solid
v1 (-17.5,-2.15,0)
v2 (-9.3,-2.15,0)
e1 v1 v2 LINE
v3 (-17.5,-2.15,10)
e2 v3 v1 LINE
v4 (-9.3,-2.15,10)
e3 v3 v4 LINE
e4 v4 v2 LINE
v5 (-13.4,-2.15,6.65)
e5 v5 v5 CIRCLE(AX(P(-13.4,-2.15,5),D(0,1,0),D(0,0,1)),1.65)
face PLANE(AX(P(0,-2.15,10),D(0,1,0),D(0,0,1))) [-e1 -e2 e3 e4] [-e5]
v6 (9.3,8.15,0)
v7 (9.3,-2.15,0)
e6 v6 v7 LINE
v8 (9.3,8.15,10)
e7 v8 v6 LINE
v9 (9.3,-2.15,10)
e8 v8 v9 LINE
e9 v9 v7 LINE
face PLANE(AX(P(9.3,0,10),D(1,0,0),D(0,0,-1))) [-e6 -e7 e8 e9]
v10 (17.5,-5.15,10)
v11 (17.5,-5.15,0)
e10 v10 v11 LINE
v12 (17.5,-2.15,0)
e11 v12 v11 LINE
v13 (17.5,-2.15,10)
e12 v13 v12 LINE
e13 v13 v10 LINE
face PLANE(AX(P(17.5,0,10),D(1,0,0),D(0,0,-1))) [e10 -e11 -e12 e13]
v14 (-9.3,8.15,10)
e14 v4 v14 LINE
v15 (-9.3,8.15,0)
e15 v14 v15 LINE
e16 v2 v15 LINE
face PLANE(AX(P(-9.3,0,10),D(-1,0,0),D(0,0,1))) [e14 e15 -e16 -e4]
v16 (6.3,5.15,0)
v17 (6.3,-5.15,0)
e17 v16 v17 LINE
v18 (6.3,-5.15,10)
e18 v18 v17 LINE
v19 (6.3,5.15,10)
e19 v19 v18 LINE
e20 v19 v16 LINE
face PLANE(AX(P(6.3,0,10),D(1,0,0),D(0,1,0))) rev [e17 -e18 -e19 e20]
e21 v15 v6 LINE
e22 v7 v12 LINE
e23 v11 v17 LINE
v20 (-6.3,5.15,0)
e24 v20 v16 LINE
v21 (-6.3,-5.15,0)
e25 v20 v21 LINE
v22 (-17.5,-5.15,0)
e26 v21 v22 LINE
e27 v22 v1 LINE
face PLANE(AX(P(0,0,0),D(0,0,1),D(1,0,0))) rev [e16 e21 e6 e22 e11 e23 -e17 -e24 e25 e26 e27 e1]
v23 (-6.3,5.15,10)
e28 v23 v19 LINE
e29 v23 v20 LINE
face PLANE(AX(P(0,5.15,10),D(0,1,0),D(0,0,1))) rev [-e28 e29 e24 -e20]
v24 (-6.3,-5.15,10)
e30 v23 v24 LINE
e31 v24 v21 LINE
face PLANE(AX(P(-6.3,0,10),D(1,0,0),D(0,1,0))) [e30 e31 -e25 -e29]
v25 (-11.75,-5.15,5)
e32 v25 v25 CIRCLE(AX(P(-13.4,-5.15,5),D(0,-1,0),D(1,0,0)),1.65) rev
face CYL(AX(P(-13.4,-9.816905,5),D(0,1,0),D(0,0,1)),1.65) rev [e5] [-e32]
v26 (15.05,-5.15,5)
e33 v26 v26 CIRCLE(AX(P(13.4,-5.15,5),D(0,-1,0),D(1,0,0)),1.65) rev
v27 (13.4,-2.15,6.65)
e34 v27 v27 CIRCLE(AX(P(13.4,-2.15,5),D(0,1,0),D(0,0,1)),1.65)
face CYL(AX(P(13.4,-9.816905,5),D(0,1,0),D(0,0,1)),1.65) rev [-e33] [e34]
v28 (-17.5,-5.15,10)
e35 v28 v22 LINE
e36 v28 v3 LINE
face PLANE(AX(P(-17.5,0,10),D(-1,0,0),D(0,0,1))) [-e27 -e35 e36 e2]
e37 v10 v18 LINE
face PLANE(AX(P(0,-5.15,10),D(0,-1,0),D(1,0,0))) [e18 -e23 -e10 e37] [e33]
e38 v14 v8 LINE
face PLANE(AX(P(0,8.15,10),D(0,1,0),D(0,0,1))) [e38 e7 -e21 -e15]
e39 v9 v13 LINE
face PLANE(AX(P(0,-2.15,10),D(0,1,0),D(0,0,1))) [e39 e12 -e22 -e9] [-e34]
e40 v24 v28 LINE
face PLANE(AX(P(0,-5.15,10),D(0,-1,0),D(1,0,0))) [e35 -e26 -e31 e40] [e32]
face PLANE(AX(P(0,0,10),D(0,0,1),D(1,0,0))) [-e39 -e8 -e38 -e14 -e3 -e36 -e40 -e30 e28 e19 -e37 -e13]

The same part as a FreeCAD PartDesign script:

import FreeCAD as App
import Part
import Sketcher
from FreeCAD import Vector


def add_polygon(sketch, points):
    """Adds a closed chain of lines whose ends are joined by coincident constraints."""
    first, n = sketch.GeometryCount, len(points)
    for a, b in zip(points, points[1:] + points[:1]):
        sketch.addGeometry(Part.LineSegment(App.Vector(*a, 0), App.Vector(*b, 0)), False)
    for i in range(n):
        sketch.addConstraint(Sketcher.Constraint("Coincident", first + i, 2, first + (i + 1) % n, 1))

doc = App.newDocument("Part")
params = doc.addObject("Spreadsheet::Sheet", "Params")
for row, (alias, value) in enumerate([
    ("sketch1_height", "3 mm"),
    ("sketch1_width", "11.2 mm"),
    ("sketch1_width2", "8.2 mm"),
    ("sketch1_width3", "18.6 mm"),
    ("sketch1_height2", "10.3 mm"),
    ("pad1_length", "10 mm"),
    ("sketch2_diameter", "3.3 mm"),
    ("pocket1_length", "3 mm"),
], start=1):
    params.set(f"A{row}", alias)
    params.set(f"B{row}", "=" + value)
    params.setAlias(f"B{row}", alias)

body = doc.addObject("PartDesign::Body", "Body")

sketch1 = body.newObject("Sketcher::SketchObject", "Sketch")
sketch1.AttachmentSupport = (doc.getObject("XY_Plane"), [""])
sketch1.MapMode = "FlatFace"
add_polygon(sketch1, [(6.3, -5.2), (17.5, -5.2), (17.5, -2.1), (9.3, -2.1), (9.3, 8.2), (-9.3, 8.2), (-9.3, -2.1), (-17.5, -2.1), (-17.5, -5.2), (-6.3, -5.2), (-6.3, 5.2), (6.3, 5.2)])
sketch1.addConstraint(Sketcher.Constraint("Horizontal", 0))
sketch1.addConstraint(Sketcher.Constraint("Vertical", 1))
sketch1.addConstraint(Sketcher.Constraint("Horizontal", 2))
sketch1.addConstraint(Sketcher.Constraint("Vertical", 3))
sketch1.addConstraint(Sketcher.Constraint("Horizontal", 4))
sketch1.addConstraint(Sketcher.Constraint("Vertical", 5))
sketch1.addConstraint(Sketcher.Constraint("Horizontal", 6))
sketch1.addConstraint(Sketcher.Constraint("Vertical", 7))
sketch1.addConstraint(Sketcher.Constraint("Horizontal", 8))
sketch1.addConstraint(Sketcher.Constraint("Vertical", 9))
sketch1.addConstraint(Sketcher.Constraint("Horizontal", 10))
sketch1.addConstraint(Sketcher.Constraint("Vertical", 11))
sketch1.addConstraint(Sketcher.Constraint("Symmetric", 8, 2, 10, 2, -1, 1))
sketch1.addConstraint(Sketcher.Constraint("Symmetric", 2, 2, 5, 2, -2))
sketch1.addConstraint(Sketcher.Constraint("Symmetric", 0, 2, 7, 2, -2))
sketch1.addConstraint(Sketcher.Constraint("Equal", 5, 9))
sketch1.addConstraint(Sketcher.Constraint("DistanceY", 1, 1, 1, 2, 3.0))
sketch1.addConstraint(Sketcher.Constraint("DistanceX", 0, 1, 0, 2, 11.2))
sketch1.addConstraint(Sketcher.Constraint("DistanceX", 2, 2, 2, 1, 8.2))
sketch1.addConstraint(Sketcher.Constraint("DistanceX", 4, 2, 4, 1, 18.6))
sketch1.addConstraint(Sketcher.Constraint("DistanceY", 3, 1, 3, 2, 10.3))
sketch1.setExpression("Constraints[28]", "Params.sketch1_height")
sketch1.setExpression("Constraints[29]", "Params.sketch1_width")
sketch1.setExpression("Constraints[30]", "Params.sketch1_width2")
sketch1.setExpression("Constraints[31]", "Params.sketch1_width3")
sketch1.setExpression("Constraints[32]", "Params.sketch1_height2")
pad1 = body.newObject("PartDesign::Pad", "Pad")
pad1.Profile = sketch1
pad1.setExpression("Length", "Params.pad1_length")

sketch2 = body.newObject("Sketcher::SketchObject", "Sketch001")
sketch2.AttachmentSupport = (doc.getObject("XZ_Plane"), [""])
sketch2.MapMode = "FlatFace"
sketch2.AttachmentOffset = App.Placement(Vector(0, 0, 2.15), App.Rotation())
sketch2.addGeometry(Part.Circle(Vector(13.4, 5, 0), Vector(0, 0, 1), 1.6), False)
sketch2.addGeometry(Part.Circle(Vector(-13.4, 5, 0), Vector(0, 0, 1), 1.6), False)
sketch2.addConstraint(Sketcher.Constraint("Equal", 0, 1))
sketch2.addConstraint(Sketcher.Constraint("Symmetric", 0, 3, 1, 3, -2))
sketch2.addConstraint(Sketcher.Constraint("Diameter", 0, 3.3))
sketch2.addConstraint(Sketcher.Constraint("DistanceY", -1, 1, 0, 3, 5.0))
sketch2.addConstraint(Sketcher.Constraint("DistanceX", -1, 1, 0, 3, 13.4))
sketch2.setExpression("Constraints[2]", "Params.sketch2_diameter")
pocket1 = body.newObject("PartDesign::Pocket", "Pocket")
pocket1.Profile = sketch2
pocket1.setExpression("Length", "Params.pocket1_length")
pocket1.Reversed = True

doc.recompute()
